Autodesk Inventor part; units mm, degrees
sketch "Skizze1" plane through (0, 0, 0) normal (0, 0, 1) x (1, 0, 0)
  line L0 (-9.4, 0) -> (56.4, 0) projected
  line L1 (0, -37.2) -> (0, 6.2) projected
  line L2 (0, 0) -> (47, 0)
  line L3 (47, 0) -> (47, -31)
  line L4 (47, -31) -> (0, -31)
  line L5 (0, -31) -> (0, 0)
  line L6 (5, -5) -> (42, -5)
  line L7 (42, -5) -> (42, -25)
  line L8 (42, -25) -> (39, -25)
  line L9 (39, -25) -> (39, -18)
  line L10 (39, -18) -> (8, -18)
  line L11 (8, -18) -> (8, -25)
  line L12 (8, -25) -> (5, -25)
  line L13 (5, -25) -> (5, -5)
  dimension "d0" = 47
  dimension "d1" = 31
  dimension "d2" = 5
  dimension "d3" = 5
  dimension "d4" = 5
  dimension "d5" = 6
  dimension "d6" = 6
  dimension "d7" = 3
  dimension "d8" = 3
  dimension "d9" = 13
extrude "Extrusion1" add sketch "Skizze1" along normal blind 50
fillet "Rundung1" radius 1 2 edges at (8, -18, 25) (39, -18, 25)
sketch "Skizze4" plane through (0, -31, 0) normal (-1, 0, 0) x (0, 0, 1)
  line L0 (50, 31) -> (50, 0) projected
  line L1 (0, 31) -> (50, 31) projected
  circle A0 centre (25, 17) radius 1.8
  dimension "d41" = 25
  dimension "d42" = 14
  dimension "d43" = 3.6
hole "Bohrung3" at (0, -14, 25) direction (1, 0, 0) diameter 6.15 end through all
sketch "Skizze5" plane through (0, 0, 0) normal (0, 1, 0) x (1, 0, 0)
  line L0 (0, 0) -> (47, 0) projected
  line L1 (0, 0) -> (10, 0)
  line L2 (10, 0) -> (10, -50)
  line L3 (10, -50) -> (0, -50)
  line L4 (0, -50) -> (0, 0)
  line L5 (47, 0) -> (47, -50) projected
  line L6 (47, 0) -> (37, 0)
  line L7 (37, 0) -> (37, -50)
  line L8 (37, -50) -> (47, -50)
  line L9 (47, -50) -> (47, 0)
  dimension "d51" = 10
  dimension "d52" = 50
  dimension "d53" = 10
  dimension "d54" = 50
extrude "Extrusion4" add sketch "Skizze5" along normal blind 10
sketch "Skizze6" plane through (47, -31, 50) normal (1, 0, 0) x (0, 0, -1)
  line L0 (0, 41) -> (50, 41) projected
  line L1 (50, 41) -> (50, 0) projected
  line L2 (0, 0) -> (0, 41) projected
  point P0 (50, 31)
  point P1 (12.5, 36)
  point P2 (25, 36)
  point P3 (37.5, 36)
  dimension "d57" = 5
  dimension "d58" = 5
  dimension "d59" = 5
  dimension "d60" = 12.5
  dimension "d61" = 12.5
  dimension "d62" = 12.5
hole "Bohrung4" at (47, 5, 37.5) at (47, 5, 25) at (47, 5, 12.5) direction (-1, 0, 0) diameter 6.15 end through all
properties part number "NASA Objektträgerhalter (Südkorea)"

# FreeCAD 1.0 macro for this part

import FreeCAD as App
import Part
import Sketcher
from FreeCAD import Vector
Q = App.Units.Quantity


def edges_at(feature, points):
    """Names of the edges that pass closest to the given points."""
    edges = feature.Shape.Edges
    near = lambda p: min(range(len(edges)), key=lambda i: edges[i].distToShape(Part.Vertex(*p))[0])
    return sorted({f"Edge{near(p) + 1}" for p in points})


def add_polygon(sketch, points):
    """Adds a closed chain of lines whose ends are joined by coincident constraints."""
    first, n = sketch.GeometryCount, len(points)
    for a, b in zip(points, points[1:] + points[:1]):
        sketch.addGeometry(Part.LineSegment(App.Vector(*a, 0), App.Vector(*b, 0)), False)
    for i in range(n):
        sketch.addConstraint(Sketcher.Constraint("Coincident", first + i, 2, first + (i + 1) % n, 1))

doc = App.newDocument("Part")
body = doc.addObject("PartDesign::Body", "Body")

sketch1 = body.newObject("Sketcher::SketchObject", "Sketch")
sketch1.AttachmentSupport = (doc.getObject("XY_Plane"), [""])
sketch1.MapMode = "FlatFace"
add_polygon(sketch1, [(47, 0), (0, 0), (0, -31), (47, -31)])
add_polygon(sketch1, [(5, -25), (5, -5), (42, -5), (42, -25), (39, -25), (39, -18), (8, -18), (8, -25)])
sketch1.addConstraint([
    Sketcher.Constraint("Horizontal", 0),
    Sketcher.Constraint("Vertical", 1),
    Sketcher.Constraint("Horizontal", 2),
    Sketcher.Constraint("Vertical", 3),
    Sketcher.Constraint("Vertical", 4),
    Sketcher.Constraint("Horizontal", 5),
    Sketcher.Constraint("Vertical", 6),
    Sketcher.Constraint("Horizontal", 7),
    Sketcher.Constraint("Vertical", 8),
    Sketcher.Constraint("Horizontal", 9),
    Sketcher.Constraint("Vertical", 10),
    Sketcher.Constraint("Horizontal", 11),
    Sketcher.Constraint("Coincident", 0, 2, -1, 1),
    Sketcher.Constraint("Horizontal", 7, 2, 10, 2),
    Sketcher.Constraint("Equal", 7, 11),
    Sketcher.Constraint("Equal", 9, 1),
    Sketcher.Constraint("DistanceX", 0, 2, 0, 1, Q("47 mm")),
    Sketcher.Constraint("DistanceX", 7, 2, 7, 1, Q("3 mm")),
    Sketcher.Constraint("DistanceX", 9, 2, 9, 1, Q("31 mm")),
    Sketcher.Constraint("DistanceX", -1, 1, 4, 2, Q("5 mm")),
    Sketcher.Constraint("DistanceY", 4, 2, -1, 1, Q("5 mm")),
    Sketcher.Constraint("DistanceY", 2, 2, 6, 2, Q("6 mm")),
    Sketcher.Constraint("DistanceY", 8, 2, 5, 2, Q("13 mm")),
])
pad1 = body.newObject("PartDesign::Pad", "Pad")
pad1.Profile = sketch1
pad1.Length = 50
doc.recompute()

fillet = body.newObject("PartDesign::Fillet", "Fillet")
fillet.Base = (pad1, edges_at(pad1, [(8, -18, 25), (39, -18, 25)]))
fillet.Radius = 1

sketch2 = body.newObject("Sketcher::SketchObject", "Sketch001")
sketch2.AttachmentSupport = (doc.getObject("YZ_Plane"), [""])
sketch2.MapMode = "FlatFace"
sketch2.addGeometry(Part.Circle(Vector(-14, 25, 0), Vector(0, 0, 1), 3.1), False)
sketch2.addConstraint([
    Sketcher.Constraint("Diameter", 0, Q("6.15 mm")),
    Sketcher.Constraint("DistanceX", 0, 3, -1, 1, Q("14 mm")),
    Sketcher.Constraint("DistanceY", -1, 1, 0, 3, Q("25 mm")),
])
doc.recompute()
hole = body.newObject("PartDesign::Hole", "Hole")
hole.Profile = sketch2
hole.ThreadType = "None"
hole.Diameter = 6.15
hole.DepthType = "ThroughAll"
hole.Reversed = True

sketch3 = body.newObject("Sketcher::SketchObject", "Sketch002")
sketch3.AttachmentSupport = (doc.getObject("XZ_Plane"), [""])
sketch3.MapMode = "FlatFace"
add_polygon(sketch3, [(47, 0), (37, 0), (37, 50), (47, 50)])
add_polygon(sketch3, [(10, 0), (0, 0), (0, 50), (10, 50)])
sketch3.addConstraint([
    Sketcher.Constraint("Horizontal", 0),
    Sketcher.Constraint("Vertical", 1),
    Sketcher.Constraint("Horizontal", 2),
    Sketcher.Constraint("Vertical", 3),
    Sketcher.Constraint("Horizontal", 4),
    Sketcher.Constraint("Vertical", 5),
    Sketcher.Constraint("Horizontal", 6),
    Sketcher.Constraint("Vertical", 7),
    Sketcher.Constraint("Coincident", 4, 2, -1, 1),
    Sketcher.Constraint("PointOnObject", 0, 2, -1),
    Sketcher.Constraint("Horizontal", 2, 2, 5, 2),
    Sketcher.Constraint("Equal", 2, 4),
    Sketcher.Constraint("DistanceX", 0, 2, 0, 1, Q("10 mm")),
    Sketcher.Constraint("DistanceY", 1, 1, 1, 2, Q("50 mm")),
    Sketcher.Constraint("DistanceX", -1, 1, 0, 2, Q("37 mm")),
])
pad2 = body.newObject("PartDesign::Pad", "Pad001")
pad2.Profile = sketch3
pad2.Length = 10
pad2.Reversed = True

sketch4 = body.newObject("Sketcher::SketchObject", "Sketch003")
sketch4.AttachmentSupport = (doc.getObject("YZ_Plane"), [""])
sketch4.MapMode = "FlatFace"
sketch4.AttachmentOffset = App.Placement(Vector(0, 0, 47), App.Rotation())
sketch4.addGeometry([
    Part.Circle(Vector(5, 37.5, 0), Vector(0, 0, 1), 3.1),
    Part.Circle(Vector(5, 25, 0), Vector(0, 0, 1), 3.1),
    Part.Circle(Vector(5, 12.5, 0), Vector(0, 0, 1), 3.1),
], False)
sketch4.addConstraint([
    Sketcher.Constraint("Equal", 0, 1),
    Sketcher.Constraint("Equal", 1, 2),
    Sketcher.Constraint("Vertical", 0, 3, 1, 3),
    Sketcher.Constraint("Vertical", 1, 3, 2, 3),
    Sketcher.Constraint("Diameter", 0, Q("6.15 mm")),
    Sketcher.Constraint("DistanceX", -1, 1, 0, 3, Q("5 mm")),
    Sketcher.Constraint("DistanceY", -1, 1, 1, 3, Q("25 mm")),
    Sketcher.Constraint("DistanceY", 2, 3, 0, 3, Q("25 mm")),
    Sketcher.Constraint("DistanceY", -1, 1, 0, 3, Q("37.5 mm")),
])
doc.recompute()
hole2 = body.newObject("PartDesign::Hole", "Hole001")
hole2.Profile = sketch4
hole2.ThreadType = "None"
hole2.Diameter = 6.15
hole2.DepthType = "ThroughAll"

doc.recompute()
